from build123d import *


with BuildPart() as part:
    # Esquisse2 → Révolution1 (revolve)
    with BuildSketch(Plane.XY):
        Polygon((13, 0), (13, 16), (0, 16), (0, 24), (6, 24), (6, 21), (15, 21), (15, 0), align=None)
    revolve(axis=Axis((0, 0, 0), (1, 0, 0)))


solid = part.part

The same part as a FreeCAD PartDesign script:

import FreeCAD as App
import Part
import Sketcher
from FreeCAD import Vector
Q = App.Units.Quantity


def add_polygon(sketch, points):
    """Adds a closed chain of lines whose ends are joined by coincident constraints."""
    first, n = sketch.GeometryCount, len(points)
    for a, b in zip(points, points[1:] + points[:1]):
        sketch.addGeometry(Part.LineSegment(App.Vector(*a, 0), App.Vector(*b, 0)), False)
    for i in range(n):
        sketch.addConstraint(Sketcher.Constraint("Coincident", first + i, 2, first + (i + 1) % n, 1))

doc = App.newDocument("Part")
params = doc.addObject("Spreadsheet::Sheet", "Params")
for row, (alias, value) in enumerate([
    ("sketch1_width", "2 mm"),
    ("sketch1_width2", "9 mm"),
    ("sketch1_width3", "6 mm"),
    ("sketch1_height", "16 mm"),
    ("sketch1_height2", "21 mm"),
    ("revolution_angle", "360 deg"),
], start=1):
    params.set(f"A{row}", alias)
    params.set(f"B{row}", "=" + value)
    params.setAlias(f"B{row}", alias)

body = doc.addObject("PartDesign::Body", "Body")

sketch1 = doc.addObject("Sketcher::SketchObject", "Sketch")
body.addObject(sketch1)
sketch1.AttachmentSupport = (doc.XY_Plane, [""])
sketch1.MapMode = "FlatFace"
add_polygon(sketch1, [(13, 16), (13, 0), (15, 0), (15, 21), (6, 21), (6, 24), (0, 24), (0, 16)])
sketch1.addConstraint([
    Sketcher.Constraint("Vertical", 0),
    Sketcher.Constraint("Horizontal", 1),
    Sketcher.Constraint("Vertical", 2),
    Sketcher.Constraint("Horizontal", 3),
    Sketcher.Constraint("Vertical", 4),
    Sketcher.Constraint("Horizontal", 5),
    Sketcher.Constraint("Vertical", 6),
    Sketcher.Constraint("Horizontal", 7),
    Sketcher.Constraint("PointOnObject", 0, 2, -1),
    Sketcher.Constraint("PointOnObject", 5, 2, -2),
    Sketcher.Constraint("DistanceX", 1, 1, 1, 2, Q("2 mm")),
    Sketcher.Constraint("DistanceX", 3, 2, 3, 1, Q("9 mm")),
    Sketcher.Constraint("DistanceX", 5, 2, 5, 1, Q("6 mm")),
    Sketcher.Constraint("DistanceY", 0, 2, 0, 1, Q("16 mm")),
    Sketcher.Constraint("DistanceY", 2, 1, 2, 2, Q("21 mm")),
    Sketcher.Constraint("DistanceY", 4, 1, 4, 2, Q("3 mm")),
])
sketch1.setExpression("Constraints[18]", "Params.sketch1_width")
sketch1.setExpression("Constraints[19]", "Params.sketch1_width2")
sketch1.setExpression("Constraints[20]", "Params.sketch1_width3")
sketch1.setExpression("Constraints[21]", "Params.sketch1_height")
sketch1.setExpression("Constraints[22]", "Params.sketch1_height2")
revolution = doc.addObject("PartDesign::Revolution", "Revolution")
body.addObject(revolution)
revolution.Profile = sketch1
revolution.ReferenceAxis = (sketch1, ["H_Axis"])
revolution.setExpression("Angle", "Params.revolution_angle")

doc.recompute()
